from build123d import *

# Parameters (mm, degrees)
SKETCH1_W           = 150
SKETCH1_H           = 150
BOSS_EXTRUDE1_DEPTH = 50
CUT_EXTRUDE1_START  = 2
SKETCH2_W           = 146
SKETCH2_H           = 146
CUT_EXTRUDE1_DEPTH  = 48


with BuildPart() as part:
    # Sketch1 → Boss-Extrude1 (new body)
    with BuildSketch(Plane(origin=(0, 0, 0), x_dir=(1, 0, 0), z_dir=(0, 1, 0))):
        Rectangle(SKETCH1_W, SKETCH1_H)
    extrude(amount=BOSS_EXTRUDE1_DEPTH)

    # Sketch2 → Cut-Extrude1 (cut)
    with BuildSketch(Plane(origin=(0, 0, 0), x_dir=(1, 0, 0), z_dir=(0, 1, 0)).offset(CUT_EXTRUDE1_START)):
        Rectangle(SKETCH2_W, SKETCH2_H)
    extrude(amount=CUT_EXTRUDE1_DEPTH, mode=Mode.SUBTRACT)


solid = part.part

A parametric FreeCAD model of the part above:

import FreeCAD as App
import Part
import Sketcher

V = App.Vector
Q = App.Units.Quantity


def add_polygon(sketch, points):
    """Adds a closed chain of lines whose ends are joined by coincident constraints."""
    first, n = sketch.GeometryCount, len(points)
    for a, b in zip(points, points[1:] + points[:1]):
        sketch.addGeometry(Part.LineSegment(App.Vector(*a, 0), App.Vector(*b, 0)), False)
    for i in range(n):
        sketch.addConstraint(Sketcher.Constraint("Coincident", first + i, 2, first + (i + 1) % n, 1))

doc = App.newDocument("Part")
params = doc.addObject("Spreadsheet::Sheet", "Params")
for row, (alias, value) in enumerate([
    ("sketch1_width", "150 mm"),
    ("pad1_length", "50 mm"),
    ("sketch2_width", "146 mm"),
    ("pocket1_length", "48 mm"),
], start=1):
    params.set(f"A{row}", alias)
    params.set(f"B{row}", "=" + value)
    params.setAlias(f"B{row}", alias)

body = doc.addObject("PartDesign::Body", "Body")

# Sketch on XZ plane
sketch1 = doc.addObject("Sketcher::SketchObject", "Sketch")
body.addObject(sketch1)
sketch1.AttachmentSupport = (doc.XZ_Plane, [""])
sketch1.MapMode = "FlatFace"
add_polygon(sketch1, [(-75, -75), (-75, 75), (75, 75), (75, -75)])  # lines 0-3
sketch1.addConstraint(Sketcher.Constraint("Vertical", 0))
sketch1.addConstraint(Sketcher.Constraint("Horizontal", 1))
sketch1.addConstraint(Sketcher.Constraint("Vertical", 2))
sketch1.addConstraint(Sketcher.Constraint("Horizontal", 3))
sketch1.addConstraint(Sketcher.Constraint("Symmetric", 0, 2, 2, 2, -1, 1))
sketch1.addConstraint(Sketcher.Constraint("Equal", 3, 0))
sketch1.addConstraint(Sketcher.Constraint("DistanceX", 1, 1, 1, 2, Q("150 mm")))
sketch1.setExpression("Constraints[10]", "Params.sketch1_width")
pad1 = doc.addObject("PartDesign::Pad", "Pad")
body.addObject(pad1)
pad1.Profile = sketch1
pad1.setExpression("Length", "Params.pad1_length")
pad1.Reversed = True

# Sketch on XZ plane
sketch2 = doc.addObject("Sketcher::SketchObject", "Sketch001")
body.addObject(sketch2)
sketch2.AttachmentSupport = (doc.XZ_Plane, [""])
sketch2.MapMode = "FlatFace"
sketch2.AttachmentOffset = App.Placement(V(0, 0, -2), App.Rotation())
add_polygon(sketch2, [(-73, -73), (-73, 73), (73, 73), (73, -73)])  # lines 0-3
sketch2.addConstraint(Sketcher.Constraint("Vertical", 0))
sketch2.addConstraint(Sketcher.Constraint("Horizontal", 1))
sketch2.addConstraint(Sketcher.Constraint("Vertical", 2))
sketch2.addConstraint(Sketcher.Constraint("Horizontal", 3))
sketch2.addConstraint(Sketcher.Constraint("Symmetric", 0, 2, 2, 2, -1, 1))
sketch2.addConstraint(Sketcher.Constraint("Equal", 3, 0))
sketch2.addConstraint(Sketcher.Constraint("DistanceX", 1, 1, 1, 2, Q("146 mm")))
sketch2.setExpression("Constraints[10]", "Params.sketch2_width")
pocket1 = doc.addObject("PartDesign::Pocket", "Pocket")
body.addObject(pocket1)
pocket1.Profile = sketch2
pocket1.setExpression("Length", "Params.pocket1_length")

doc.recompute()
